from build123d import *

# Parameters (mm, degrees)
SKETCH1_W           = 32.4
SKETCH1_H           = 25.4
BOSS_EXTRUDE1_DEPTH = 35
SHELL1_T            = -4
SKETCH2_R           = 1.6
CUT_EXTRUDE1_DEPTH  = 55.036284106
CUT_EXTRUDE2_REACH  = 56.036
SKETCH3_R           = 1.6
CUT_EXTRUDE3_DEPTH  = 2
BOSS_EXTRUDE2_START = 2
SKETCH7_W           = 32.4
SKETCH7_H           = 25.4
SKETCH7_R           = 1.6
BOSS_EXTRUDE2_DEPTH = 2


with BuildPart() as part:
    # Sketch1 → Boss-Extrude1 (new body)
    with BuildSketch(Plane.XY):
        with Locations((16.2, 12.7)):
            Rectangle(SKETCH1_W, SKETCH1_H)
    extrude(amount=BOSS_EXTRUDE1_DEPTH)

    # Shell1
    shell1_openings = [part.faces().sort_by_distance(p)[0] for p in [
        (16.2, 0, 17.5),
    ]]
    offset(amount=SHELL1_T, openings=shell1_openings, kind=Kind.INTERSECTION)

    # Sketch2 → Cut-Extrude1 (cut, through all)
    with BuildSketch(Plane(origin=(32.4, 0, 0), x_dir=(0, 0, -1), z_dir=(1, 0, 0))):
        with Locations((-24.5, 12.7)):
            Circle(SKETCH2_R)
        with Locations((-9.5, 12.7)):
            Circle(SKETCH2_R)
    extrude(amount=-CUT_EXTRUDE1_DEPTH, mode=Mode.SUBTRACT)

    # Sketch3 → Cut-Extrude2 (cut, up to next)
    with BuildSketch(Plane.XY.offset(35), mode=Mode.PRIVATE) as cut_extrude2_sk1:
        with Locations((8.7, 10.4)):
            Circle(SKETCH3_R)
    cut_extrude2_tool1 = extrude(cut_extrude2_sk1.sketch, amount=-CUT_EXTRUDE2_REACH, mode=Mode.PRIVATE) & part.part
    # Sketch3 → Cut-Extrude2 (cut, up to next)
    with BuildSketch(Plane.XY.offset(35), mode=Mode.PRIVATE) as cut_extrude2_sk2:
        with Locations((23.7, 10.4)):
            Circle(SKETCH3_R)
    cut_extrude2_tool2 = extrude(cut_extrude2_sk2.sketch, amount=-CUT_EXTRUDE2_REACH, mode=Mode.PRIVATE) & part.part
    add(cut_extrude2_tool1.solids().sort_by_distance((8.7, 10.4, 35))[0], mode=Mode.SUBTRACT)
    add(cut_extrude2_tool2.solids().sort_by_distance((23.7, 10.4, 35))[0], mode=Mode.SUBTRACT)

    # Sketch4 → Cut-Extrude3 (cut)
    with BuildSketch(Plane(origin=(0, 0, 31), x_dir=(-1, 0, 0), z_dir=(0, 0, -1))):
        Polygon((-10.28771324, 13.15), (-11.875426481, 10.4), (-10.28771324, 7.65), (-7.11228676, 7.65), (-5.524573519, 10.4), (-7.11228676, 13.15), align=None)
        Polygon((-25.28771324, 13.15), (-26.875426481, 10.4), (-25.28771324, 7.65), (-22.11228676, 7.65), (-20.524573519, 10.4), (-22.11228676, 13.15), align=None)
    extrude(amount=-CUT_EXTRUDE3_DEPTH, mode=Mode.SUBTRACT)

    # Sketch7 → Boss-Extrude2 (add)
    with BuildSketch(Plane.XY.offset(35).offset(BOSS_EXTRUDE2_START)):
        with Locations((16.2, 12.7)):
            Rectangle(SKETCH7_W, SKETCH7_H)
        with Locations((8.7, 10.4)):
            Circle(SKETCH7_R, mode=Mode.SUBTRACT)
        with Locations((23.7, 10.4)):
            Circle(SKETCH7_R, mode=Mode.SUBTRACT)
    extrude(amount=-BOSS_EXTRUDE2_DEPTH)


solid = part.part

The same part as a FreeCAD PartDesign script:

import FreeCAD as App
import Part
import Sketcher

V = App.Vector
Q = App.Units.Quantity


def faces_at(feature, points):
    """Names of the faces that lie closest to the given points."""
    faces = feature.Shape.Faces
    near = lambda p: min(range(len(faces)), key=lambda i: faces[i].distToShape(Part.Vertex(*p))[0])
    return sorted({f"Face{near(p) + 1}" for p in points})


def add_polygon(sketch, points):
    """Adds a closed chain of lines whose ends are joined by coincident constraints."""
    first, n = sketch.GeometryCount, len(points)
    for a, b in zip(points, points[1:] + points[:1]):
        sketch.addGeometry(Part.LineSegment(App.Vector(*a, 0), App.Vector(*b, 0)), False)
    for i in range(n):
        sketch.addConstraint(Sketcher.Constraint("Coincident", first + i, 2, first + (i + 1) % n, 1))

doc = App.newDocument("Part")
params = doc.addObject("Spreadsheet::Sheet", "Params")
for row, (alias, value) in enumerate([
    ("sketch1_width", "32.4 mm"),
    ("sketch1_height", "25.4 mm"),
    ("pad1_length", "35 mm"),
    ("thickness_wall", "4 mm"),
    ("sketch2_diameter", "3.2 mm"),
    ("sketch3_diameter", "3.2 mm"),
    ("sketch4_diameter", "3.2 mm"),
    ("pocket4_length", "2 mm"),
    ("sketch6_diameter", "3.2 mm"),
    ("sketch6_width", "32.4 mm"),
    ("sketch6_height", "25.4 mm"),
    ("pad2_length", "2 mm"),
], start=1):
    params.set(f"A{row}", alias)
    params.set(f"B{row}", "=" + value)
    params.setAlias(f"B{row}", alias)

body = doc.addObject("PartDesign::Body", "Body")

# Sketch on XY plane
sketch1 = body.newObject("Sketcher::SketchObject", "Sketch")
sketch1.AttachmentSupport = (doc.getObject("XY_Plane"), [""])
sketch1.MapMode = "FlatFace"
add_polygon(sketch1, [(0, 25.4), (0, 0), (32.4, 0), (32.4, 25.4)])  # lines 0-3
sketch1.addConstraint([
    Sketcher.Constraint("Vertical", 0),
    Sketcher.Constraint("Horizontal", 1),
    Sketcher.Constraint("Vertical", 2),
    Sketcher.Constraint("Horizontal", 3),
    Sketcher.Constraint("Coincident", 0, 2, -1, 1),
    Sketcher.Constraint("DistanceX", 1, 1, 1, 2, Q("32.4 mm")),
    Sketcher.Constraint("DistanceY", 0, 2, 0, 1, Q("25.4 mm")),
])
sketch1.setExpression("Constraints[9]", "Params.sketch1_width")
sketch1.setExpression("Constraints[10]", "Params.sketch1_height")
pad1 = body.newObject("PartDesign::Pad", "Pad")
pad1.Profile = sketch1
pad1.setExpression("Length", "Params.pad1_length")
doc.recompute()

thickness = body.newObject("PartDesign::Thickness", "Thickness")
thickness.Base = (pad1, faces_at(pad1, [(16.2, 0, 17.5)]))
thickness.setExpression("Value", "Params.thickness_wall")
thickness.Reversed = True
thickness.Join = "Intersection"

# Sketch on YZ plane
sketch2 = body.newObject("Sketcher::SketchObject", "Sketch001")
sketch2.AttachmentSupport = (doc.getObject("YZ_Plane"), [""])
sketch2.MapMode = "FlatFace"
sketch2.AttachmentOffset = App.Placement(V(0, 0, 32.4), App.Rotation())
sketch2.addGeometry([
    Part.Circle(V(12.7, 24.5, 0), V(0, 0, 1), 1.6),
    Part.Circle(V(12.7, 9.5, 0), V(0, 0, 1), 1.6),
], False)
sketch2.addConstraint([
    Sketcher.Constraint("Equal", 0, 1),
    Sketcher.Constraint("Vertical", 0, 3, 1, 3),
    Sketcher.Constraint("Diameter", 0, Q("3.2 mm")),
    Sketcher.Constraint("DistanceY", 1, 3, 0, 3, Q("15 mm")),
    Sketcher.Constraint("DistanceX", -1, 1, 0, 3, Q("12.7 mm")),
    Sketcher.Constraint("DistanceY", -1, 1, 0, 3, Q("24.5 mm")),
])
sketch2.setExpression("Constraints[2]", "Params.sketch2_diameter")
pocket1 = body.newObject("PartDesign::Pocket", "Pocket")
pocket1.Profile = sketch2
pocket1.Type = "ThroughAll"

# Sketch on XY plane
sketch3 = body.newObject("Sketcher::SketchObject", "Sketch002")
sketch3.AttachmentSupport = (doc.getObject("XY_Plane"), [""])
sketch3.MapMode = "FlatFace"
sketch3.AttachmentOffset = App.Placement(V(0, 0, 35), App.Rotation())
sketch3.addGeometry(Part.Circle(V(8.7, 10.4, 0), V(0, 0, 1), 1.6), False)
sketch3.addConstraint([
    Sketcher.Constraint("Diameter", 0, Q("3.2 mm")),
    Sketcher.Constraint("DistanceX", -1, 1, 0, 3, Q("8.7 mm")),
    Sketcher.Constraint("DistanceY", -1, 1, 0, 3, Q("10.4 mm")),
])
sketch3.setExpression("Constraints[0]", "Params.sketch3_diameter")
pocket2 = body.newObject("PartDesign::Pocket", "Pocket001")
pocket2.Profile = sketch3
pocket2.Type = "UpToFirst"

# Sketch on XY plane
sketch4 = body.newObject("Sketcher::SketchObject", "Sketch003")
sketch4.AttachmentSupport = (doc.getObject("XY_Plane"), [""])
sketch4.MapMode = "FlatFace"
sketch4.AttachmentOffset = App.Placement(V(0, 0, 35), App.Rotation())
sketch4.addGeometry(Part.Circle(V(23.7, 10.4, 0), V(0, 0, 1), 1.6), False)
sketch4.addConstraint([
    Sketcher.Constraint("Diameter", 0, Q("3.2 mm")),
    Sketcher.Constraint("DistanceX", -1, 1, 0, 3, Q("23.7 mm")),
    Sketcher.Constraint("DistanceY", -1, 1, 0, 3, Q("10.4 mm")),
])
sketch4.setExpression("Constraints[0]", "Params.sketch4_diameter")
pocket3 = body.newObject("PartDesign::Pocket", "Pocket002")
pocket3.Profile = sketch4
pocket3.Type = "UpToFirst"

# Sketch on XY plane
sketch5 = body.newObject("Sketcher::SketchObject", "Sketch004")
sketch5.AttachmentSupport = (doc.getObject("XY_Plane"), [""])
sketch5.MapMode = "FlatFace"
sketch5.AttachmentOffset = App.Placement(V(0, 0, 31), App.Rotation())
add_polygon(sketch5, [(10.287713, 13.15), (11.875426, 10.4), (10.287713, 7.65), (7.112287, 7.65), (5.524574, 10.4), (7.112287, 13.15)])  # lines 0-5
add_polygon(sketch5, [(25.287713, 13.15), (26.875426, 10.4), (25.287713, 7.65), (22.112287, 7.65), (20.524574, 10.4), (22.112287, 13.15)])  # lines 6-11
sketch5.addConstraint([
    Sketcher.Constraint("Horizontal", 2),
    Sketcher.Constraint("Horizontal", 5),
    Sketcher.Constraint("Horizontal", 8),
    Sketcher.Constraint("Horizontal", 11),
    Sketcher.Constraint("Parallel", 0, 3),
    Sketcher.Constraint("Parallel", 1, 4),
    Sketcher.Constraint("Parallel", 3, 6),
    Sketcher.Constraint("Parallel", 4, 7),
    Sketcher.Constraint("Parallel", 6, 9),
    Sketcher.Constraint("Parallel", 7, 10),
    Sketcher.Constraint("Horizontal", 0, 2, 3, 2),
    Sketcher.Constraint("Horizontal", 3, 2, 6, 2),
    Sketcher.Constraint("Horizontal", 2, 2, 7, 2),
    Sketcher.Constraint("Horizontal", 6, 2, 9, 2),
    Sketcher.Constraint("Horizontal", 5, 2, 10, 2),
    Sketcher.Constraint("Vertical", 2, 2, 4, 2),
    Sketcher.Constraint("Vertical", 1, 2, 5, 2),
    Sketcher.Constraint("Equal", 5, 8),
    Sketcher.Constraint("Angle", 0, Q("-60 deg")),
    Sketcher.Constraint("DistanceX", 0, 2, 6, 2, Q("15 mm")),
    Sketcher.Constraint("DistanceY", -1, 1, 0, 2, Q("10.4 mm")),
    Sketcher.Constraint("DistanceY", 2, 2, 4, 2, Q("5.5 mm")),
    Sketcher.Constraint("DistanceX", 2, 2, 2, 1, Q("3.175426 mm")),
    Sketcher.Constraint("DistanceX", -1, 1, 0, 2, Q("11.875426 mm")),
])
pocket4 = body.newObject("PartDesign::Pocket", "Pocket003")
pocket4.Profile = sketch5
pocket4.setExpression("Length", "Params.pocket4_length")
pocket4.Reversed = True

# Sketch on XY plane
sketch6 = body.newObject("Sketcher::SketchObject", "Sketch005")
sketch6.AttachmentSupport = (doc.getObject("XY_Plane"), [""])
sketch6.MapMode = "FlatFace"
sketch6.AttachmentOffset = App.Placement(V(0, 0, 37), App.Rotation())
add_polygon(sketch6, [(0, 25.4), (0, 0), (32.4, 0), (32.4, 25.4)])  # lines 0-3
sketch6.addGeometry(Part.Circle(V(8.7, 10.4, 0), V(0, 0, 1), 1.6), False)  # 4
sketch6.addGeometry(Part.Circle(V(23.7, 10.4, 0), V(0, 0, 1), 1.6), False)  # 5
sketch6.addConstraint([
    Sketcher.Constraint("Vertical", 0),
    Sketcher.Constraint("Horizontal", 1),
    Sketcher.Constraint("Vertical", 2),
    Sketcher.Constraint("Horizontal", 3),
    Sketcher.Constraint("Coincident", 0, 2, -1, 1),
    Sketcher.Constraint("Equal", 4, 5),
    Sketcher.Constraint("Horizontal", 4, 3, 5, 3),
    Sketcher.Constraint("Diameter", 4, Q("3.2 mm")),
    Sketcher.Constraint("DistanceX", 1, 1, 1, 2, Q("32.4 mm")),
    Sketcher.Constraint("DistanceY", 0, 2, 0, 1, Q("25.4 mm")),
    Sketcher.Constraint("DistanceX", 4, 3, 5, 3, Q("15 mm")),
    Sketcher.Constraint("DistanceY", 5, 3, 2, 2, Q("15 mm")),
    Sketcher.Constraint("DistanceX", -1, 1, 4, 3, Q("8.7 mm")),
])
sketch6.setExpression("Constraints[11]", "Params.sketch6_diameter")
sketch6.setExpression("Constraints[12]", "Params.sketch6_width")
sketch6.setExpression("Constraints[13]", "Params.sketch6_height")
pad2 = body.newObject("PartDesign::Pad", "Pad001")
pad2.Profile = sketch6
pad2.setExpression("Length", "Params.pad2_length")
pad2.Reversed = True

doc.recompute()
